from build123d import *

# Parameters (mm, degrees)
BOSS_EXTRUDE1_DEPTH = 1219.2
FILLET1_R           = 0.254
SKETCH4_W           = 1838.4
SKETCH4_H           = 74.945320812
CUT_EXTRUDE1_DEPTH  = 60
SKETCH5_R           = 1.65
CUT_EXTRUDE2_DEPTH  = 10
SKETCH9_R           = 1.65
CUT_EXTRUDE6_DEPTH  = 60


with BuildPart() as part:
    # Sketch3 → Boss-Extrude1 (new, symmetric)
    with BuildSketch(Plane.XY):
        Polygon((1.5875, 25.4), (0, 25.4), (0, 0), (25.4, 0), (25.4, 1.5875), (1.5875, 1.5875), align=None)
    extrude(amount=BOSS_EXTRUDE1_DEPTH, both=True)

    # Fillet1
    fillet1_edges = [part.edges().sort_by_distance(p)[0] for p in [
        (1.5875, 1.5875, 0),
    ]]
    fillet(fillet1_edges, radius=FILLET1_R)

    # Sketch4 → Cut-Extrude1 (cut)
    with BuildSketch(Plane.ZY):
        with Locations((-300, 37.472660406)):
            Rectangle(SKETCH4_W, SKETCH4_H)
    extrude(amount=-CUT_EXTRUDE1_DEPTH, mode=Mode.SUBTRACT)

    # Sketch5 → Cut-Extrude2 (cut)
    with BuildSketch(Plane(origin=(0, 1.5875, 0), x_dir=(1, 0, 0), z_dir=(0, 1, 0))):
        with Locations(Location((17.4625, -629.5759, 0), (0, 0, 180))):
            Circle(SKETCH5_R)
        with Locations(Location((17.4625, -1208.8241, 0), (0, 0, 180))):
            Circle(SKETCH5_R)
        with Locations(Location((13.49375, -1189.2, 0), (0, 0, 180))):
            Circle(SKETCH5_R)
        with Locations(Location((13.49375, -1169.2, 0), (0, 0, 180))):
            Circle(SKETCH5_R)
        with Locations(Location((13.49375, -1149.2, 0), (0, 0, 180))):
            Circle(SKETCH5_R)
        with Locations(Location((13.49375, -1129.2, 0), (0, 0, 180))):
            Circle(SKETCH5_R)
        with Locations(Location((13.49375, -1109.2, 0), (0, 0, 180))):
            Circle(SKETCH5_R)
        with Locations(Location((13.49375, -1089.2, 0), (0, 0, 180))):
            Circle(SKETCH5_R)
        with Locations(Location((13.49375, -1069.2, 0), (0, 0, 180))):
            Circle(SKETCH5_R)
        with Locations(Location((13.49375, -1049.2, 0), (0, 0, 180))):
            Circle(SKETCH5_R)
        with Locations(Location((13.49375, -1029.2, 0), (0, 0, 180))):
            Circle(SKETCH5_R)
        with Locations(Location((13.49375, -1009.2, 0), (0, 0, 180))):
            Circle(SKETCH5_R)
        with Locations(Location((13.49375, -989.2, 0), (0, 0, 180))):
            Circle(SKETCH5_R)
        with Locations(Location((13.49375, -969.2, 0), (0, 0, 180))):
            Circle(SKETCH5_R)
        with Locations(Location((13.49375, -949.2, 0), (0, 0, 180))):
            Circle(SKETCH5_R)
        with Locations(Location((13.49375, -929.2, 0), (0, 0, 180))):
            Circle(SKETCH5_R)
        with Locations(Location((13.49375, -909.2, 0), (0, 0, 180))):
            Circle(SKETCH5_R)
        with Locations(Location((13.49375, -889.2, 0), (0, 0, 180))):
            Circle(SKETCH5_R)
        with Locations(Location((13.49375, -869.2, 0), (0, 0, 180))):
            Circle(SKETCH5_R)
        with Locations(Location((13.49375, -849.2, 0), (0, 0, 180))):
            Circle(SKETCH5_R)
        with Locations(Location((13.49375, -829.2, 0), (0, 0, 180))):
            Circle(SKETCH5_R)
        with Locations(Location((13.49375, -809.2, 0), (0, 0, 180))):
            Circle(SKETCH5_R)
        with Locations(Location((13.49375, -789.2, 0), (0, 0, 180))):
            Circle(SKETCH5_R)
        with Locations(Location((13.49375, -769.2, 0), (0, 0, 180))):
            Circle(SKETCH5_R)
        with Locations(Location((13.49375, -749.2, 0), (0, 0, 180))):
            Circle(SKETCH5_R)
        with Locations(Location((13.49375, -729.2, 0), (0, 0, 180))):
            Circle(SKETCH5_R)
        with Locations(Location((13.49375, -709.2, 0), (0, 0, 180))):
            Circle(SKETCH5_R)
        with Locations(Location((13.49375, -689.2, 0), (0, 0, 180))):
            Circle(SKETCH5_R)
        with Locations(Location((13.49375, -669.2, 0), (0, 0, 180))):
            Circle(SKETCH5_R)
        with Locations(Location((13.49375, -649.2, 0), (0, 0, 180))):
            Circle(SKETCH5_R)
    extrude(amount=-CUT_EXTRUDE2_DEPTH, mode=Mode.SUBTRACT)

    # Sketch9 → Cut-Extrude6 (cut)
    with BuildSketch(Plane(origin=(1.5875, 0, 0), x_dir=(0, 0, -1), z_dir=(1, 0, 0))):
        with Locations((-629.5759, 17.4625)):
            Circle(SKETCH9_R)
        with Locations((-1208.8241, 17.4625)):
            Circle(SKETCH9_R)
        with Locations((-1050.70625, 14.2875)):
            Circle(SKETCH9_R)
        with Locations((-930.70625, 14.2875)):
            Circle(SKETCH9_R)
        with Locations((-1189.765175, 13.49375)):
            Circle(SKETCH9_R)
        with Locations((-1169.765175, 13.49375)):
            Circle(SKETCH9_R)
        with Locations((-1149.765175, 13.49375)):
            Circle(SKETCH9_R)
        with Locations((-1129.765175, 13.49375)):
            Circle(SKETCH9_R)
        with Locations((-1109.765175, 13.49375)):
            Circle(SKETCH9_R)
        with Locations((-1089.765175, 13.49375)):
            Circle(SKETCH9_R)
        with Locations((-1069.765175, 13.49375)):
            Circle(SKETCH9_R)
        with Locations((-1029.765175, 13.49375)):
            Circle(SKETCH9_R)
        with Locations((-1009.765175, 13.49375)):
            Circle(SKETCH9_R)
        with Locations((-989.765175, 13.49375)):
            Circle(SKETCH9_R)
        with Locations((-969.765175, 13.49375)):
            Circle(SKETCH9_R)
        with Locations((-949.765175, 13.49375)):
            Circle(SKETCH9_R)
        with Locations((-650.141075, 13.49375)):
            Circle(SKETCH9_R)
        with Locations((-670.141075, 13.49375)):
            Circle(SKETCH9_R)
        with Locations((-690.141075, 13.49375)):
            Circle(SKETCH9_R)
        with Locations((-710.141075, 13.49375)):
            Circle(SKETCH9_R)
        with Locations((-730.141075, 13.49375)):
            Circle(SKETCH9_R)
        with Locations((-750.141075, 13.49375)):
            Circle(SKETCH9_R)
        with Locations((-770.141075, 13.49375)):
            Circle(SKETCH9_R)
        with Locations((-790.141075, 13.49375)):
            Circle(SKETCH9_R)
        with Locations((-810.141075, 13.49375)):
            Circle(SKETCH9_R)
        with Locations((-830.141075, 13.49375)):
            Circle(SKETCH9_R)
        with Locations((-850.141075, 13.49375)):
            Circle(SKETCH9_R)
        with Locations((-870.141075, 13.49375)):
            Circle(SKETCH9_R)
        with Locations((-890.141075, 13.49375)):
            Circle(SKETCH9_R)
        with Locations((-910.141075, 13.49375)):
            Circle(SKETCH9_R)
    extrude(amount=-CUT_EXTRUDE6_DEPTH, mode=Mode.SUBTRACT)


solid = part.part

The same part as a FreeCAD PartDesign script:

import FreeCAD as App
import Part
import Sketcher
from FreeCAD import Vector
Q = App.Units.Quantity


def edges_at(feature, points):
    """Names of the edges that pass closest to the given points."""
    edges = feature.Shape.Edges
    near = lambda p: min(range(len(edges)), key=lambda i: edges[i].distToShape(Part.Vertex(*p))[0])
    return sorted({f"Edge{near(p) + 1}" for p in points})

doc = App.newDocument("Part")
params = doc.addObject("Spreadsheet::Sheet", "Params")
for row, (alias, value) in enumerate([
    ("sketch1_width", "1 in"),
    ("sketch1_width2", "0.0625 in"),
    ("pad1_length", "96 in"),
    ("fillet_radius", "0.01 in"),
    ("pocket1_length", "60 mm"),
    ("pocket2_length", "10 mm"),
    ("pocket3_length", "60 mm"),
], start=1):
    params.set(f"A{row}", alias)
    params.set(f"B{row}", "=" + value)
    params.setAlias(f"B{row}", alias)

body = doc.addObject("PartDesign::Body", "Body")

# Sketch on XY plane
sketch1 = doc.addObject("Sketcher::SketchObject", "Sketch")
body.addObject(sketch1)
sketch1.AttachmentSupport = (doc.XY_Plane, [""])
sketch1.MapMode = "FlatFace"
sketch1.addGeometry([
    Part.LineSegment(Vector(1.5875, 25.4, 0), Vector(0, 25.4, 0)),  # 0
    Part.LineSegment(Vector(0, 25.4, 0), Vector(0, 0, 0)),  # 1
    Part.LineSegment(Vector(0, 0, 0), Vector(25.4, 0, 0)),  # 2
    Part.LineSegment(Vector(25.4, 0, 0), Vector(25.4, 1.5875, 0)),  # 3
    Part.LineSegment(Vector(25.4, 1.5875, 0), Vector(1.5875, 1.5875, 0)),  # 4
    Part.LineSegment(Vector(1.5875, 1.5875, 0), Vector(1.5875, 25.4, 0)),  # 5
], False)
sketch1.addConstraint([
    Sketcher.Constraint("Coincident", 0, 2, 1, 1),
    Sketcher.Constraint("Coincident", 1, 2, 2, 1),
    Sketcher.Constraint("Coincident", 2, 2, 3, 1),
    Sketcher.Constraint("Coincident", 3, 2, 4, 1),
    Sketcher.Constraint("Coincident", 4, 2, 5, 1),
    Sketcher.Constraint("Coincident", 5, 2, 0, 1),
    Sketcher.Constraint("Horizontal", 0),
    Sketcher.Constraint("Vertical", 1),
    Sketcher.Constraint("Horizontal", 2),
    Sketcher.Constraint("Vertical", 3),
    Sketcher.Constraint("Horizontal", 4),
    Sketcher.Constraint("Vertical", 5),
    Sketcher.Constraint("Coincident", 1, 2, -1, 1),
    Sketcher.Constraint("Equal", 2, 1),
    Sketcher.Constraint("Equal", 0, 3),
    Sketcher.Constraint("DistanceX", 2, 1, 2, 2, Q("1 in")),
    Sketcher.Constraint("DistanceX", 0, 2, 0, 1, Q("0.0625 in")),
])
sketch1.setExpression("Constraints[15]", "Params.sketch1_width")
sketch1.setExpression("Constraints[16]", "Params.sketch1_width2")
pad1 = doc.addObject("PartDesign::Pad", "Pad")
body.addObject(pad1)
pad1.Profile = sketch1
pad1.setExpression("Length", "Params.pad1_length")
pad1.Midplane = True
doc.recompute()

fillet = doc.addObject("PartDesign::Fillet", "Fillet")
body.addObject(fillet)
fillet.Base = (pad1, edges_at(pad1, [(1.587, 1.587, 0)]))
fillet.setExpression("Radius", "Params.fillet_radius")

# Sketch on YZ plane
sketch2 = doc.addObject("Sketcher::SketchObject", "Sketch001")
body.addObject(sketch2)
sketch2.AttachmentSupport = (doc.YZ_Plane, [""])
sketch2.MapMode = "FlatFace"
sketch2.addGeometry([
    Part.LineSegment(Vector(74.945321, -1219.2, 0), Vector(0, -1219.2, 0)),
    Part.LineSegment(Vector(0, -1219.2, 0), Vector(0, 619.2, 0)),
    Part.LineSegment(Vector(0, 619.2, 0), Vector(74.945321, 619.2, 0)),
    Part.LineSegment(Vector(74.945321, 619.2, 0), Vector(74.945321, -1219.2, 0)),
], False)
sketch2.addConstraint([
    Sketcher.Constraint("Coincident", 0, 2, 1, 1),
    Sketcher.Constraint("Coincident", 1, 2, 2, 1),
    Sketcher.Constraint("Coincident", 2, 2, 3, 1),
    Sketcher.Constraint("Coincident", 3, 2, 0, 1),
    Sketcher.Constraint("Horizontal", 0),
    Sketcher.Constraint("Vertical", 1),
    Sketcher.Constraint("Horizontal", 2),
    Sketcher.Constraint("Vertical", 3),
    Sketcher.Constraint("PointOnObject", 0, 2, -2),
    Sketcher.Constraint("DistanceY", 0, 2, -1, 1, Q("48 in")),
    Sketcher.Constraint("DistanceY", 1, 1, 1, 2, 1838.4),
    Sketcher.Constraint("DistanceX", 0, 2, 0, 1, 74.945321),
])
pocket1 = doc.addObject("PartDesign::Pocket", "Pocket")
body.addObject(pocket1)
pocket1.Profile = sketch2
pocket1.setExpression("Length", "Params.pocket1_length")
pocket1.Reversed = True

# Sketch on XZ plane
sketch3 = doc.addObject("Sketcher::SketchObject", "Sketch002")
body.addObject(sketch3)
sketch3.AttachmentSupport = (doc.XZ_Plane, [""])
sketch3.MapMode = "FlatFace"
sketch3.AttachmentOffset = App.Placement(Vector(0, 0, -0.0625 * 25.4), App.Rotation())
sketch3.addGeometry([
    Part.Circle(Vector(17.4625, 629.5759, 0), Vector(0, 0, 1), 1.65),  # 0
    Part.Circle(Vector(17.4625, 1208.8241, 0), Vector(0, 0, 1), 1.65),  # 1
    Part.Circle(Vector(13.49375, 1189.2, 0), Vector(0, 0, 1), 1.65),  # 2
    Part.Circle(Vector(13.49375, 1169.2, 0), Vector(0, 0, 1), 1.65),  # 3
    Part.Circle(Vector(13.49375, 1149.2, 0), Vector(0, 0, 1), 1.65),  # 4
    Part.Circle(Vector(13.49375, 1129.2, 0), Vector(0, 0, 1), 1.65),  # 5
    Part.Circle(Vector(13.49375, 1109.2, 0), Vector(0, 0, 1), 1.65),  # 6
    Part.Circle(Vector(13.49375, 1089.2, 0), Vector(0, 0, 1), 1.65),  # 7
    Part.Circle(Vector(13.49375, 1069.2, 0), Vector(0, 0, 1), 1.65),  # 8
    Part.Circle(Vector(13.49375, 1049.2, 0), Vector(0, 0, 1), 1.65),  # 9
    Part.Circle(Vector(13.49375, 1029.2, 0), Vector(0, 0, 1), 1.65),  # 10
    Part.Circle(Vector(13.49375, 1009.2, 0), Vector(0, 0, 1), 1.65),  # 11
    Part.Circle(Vector(13.49375, 989.2, 0), Vector(0, 0, 1), 1.65),  # 12
    Part.Circle(Vector(13.49375, 969.2, 0), Vector(0, 0, 1), 1.65),  # 13
    Part.Circle(Vector(13.49375, 949.2, 0), Vector(0, 0, 1), 1.65),  # 14
    Part.Circle(Vector(13.49375, 929.2, 0), Vector(0, 0, 1), 1.65),  # 15
    Part.Circle(Vector(13.49375, 909.2, 0), Vector(0, 0, 1), 1.65),  # 16
    Part.Circle(Vector(13.49375, 889.2, 0), Vector(0, 0, 1), 1.65),  # 17
    Part.Circle(Vector(13.49375, 869.2, 0), Vector(0, 0, 1), 1.65),  # 18
    Part.Circle(Vector(13.49375, 849.2, 0), Vector(0, 0, 1), 1.65),  # 19
    Part.Circle(Vector(13.49375, 829.2, 0), Vector(0, 0, 1), 1.65),  # 20
    Part.Circle(Vector(13.49375, 809.2, 0), Vector(0, 0, 1), 1.65),  # 21
    Part.Circle(Vector(13.49375, 789.2, 0), Vector(0, 0, 1), 1.65),  # 22
    Part.Circle(Vector(13.49375, 769.2, 0), Vector(0, 0, 1), 1.65),  # 23
    Part.Circle(Vector(13.49375, 749.2, 0), Vector(0, 0, 1), 1.65),  # 24
    Part.Circle(Vector(13.49375, 729.2, 0), Vector(0, 0, 1), 1.65),  # 25
    Part.Circle(Vector(13.49375, 709.2, 0), Vector(0, 0, 1), 1.65),  # 26
    Part.Circle(Vector(13.49375, 689.2, 0), Vector(0, 0, 1), 1.65),  # 27
    Part.Circle(Vector(13.49375, 669.2, 0), Vector(0, 0, 1), 1.65),  # 28
    Part.Circle(Vector(13.49375, 649.2, 0), Vector(0, 0, 1), 1.65),  # 29
], False)
sketch3.addConstraint([
    Sketcher.Constraint("Equal", 0, 1),
    Sketcher.Constraint("Equal", 1, 2),
    Sketcher.Constraint("Equal", 2, 3),
    Sketcher.Constraint("Equal", 3, 4),
    Sketcher.Constraint("Equal", 4, 5),
    Sketcher.Constraint("Equal", 5, 6),
    Sketcher.Constraint("Equal", 6, 7),
    Sketcher.Constraint("Equal", 7, 8),
    Sketcher.Constraint("Equal", 8, 9),
    Sketcher.Constraint("Equal", 9, 10),
    Sketcher.Constraint("Equal", 10, 11),
    Sketcher.Constraint("Equal", 11, 12),
    Sketcher.Constraint("Equal", 12, 13),
    Sketcher.Constraint("Equal", 13, 14),
    Sketcher.Constraint("Equal", 14, 15),
    Sketcher.Constraint("Equal", 15, 16),
    Sketcher.Constraint("Equal", 16, 17),
    Sketcher.Constraint("Equal", 17, 18),
    Sketcher.Constraint("Equal", 18, 19),
    Sketcher.Constraint("Equal", 19, 20),
    Sketcher.Constraint("Equal", 20, 21),
    Sketcher.Constraint("Equal", 21, 22),
    Sketcher.Constraint("Equal", 22, 23),
    Sketcher.Constraint("Equal", 23, 24),
    Sketcher.Constraint("Equal", 24, 25),
    Sketcher.Constraint("Equal", 25, 26),
    Sketcher.Constraint("Equal", 26, 27),
    Sketcher.Constraint("Equal", 27, 28),
    Sketcher.Constraint("Equal", 28, 29),
    Sketcher.Constraint("Vertical", 0, 3, 1, 3),
    Sketcher.Constraint("Vertical", 2, 3, 3, 3),
    Sketcher.Constraint("Vertical", 3, 3, 4, 3),
    Sketcher.Constraint("Vertical", 4, 3, 5, 3),
    Sketcher.Constraint("Vertical", 5, 3, 6, 3),
    Sketcher.Constraint("Vertical", 6, 3, 7, 3),
    Sketcher.Constraint("Vertical", 7, 3, 8, 3),
    Sketcher.Constraint("Vertical", 8, 3, 9, 3),
    Sketcher.Constraint("Vertical", 9, 3, 10, 3),
    Sketcher.Constraint("Vertical", 10, 3, 11, 3),
    Sketcher.Constraint("Vertical", 11, 3, 12, 3),
    Sketcher.Constraint("Vertical", 12, 3, 13, 3),
    Sketcher.Constraint("Vertical", 13, 3, 14, 3),
    Sketcher.Constraint("Vertical", 14, 3, 15, 3),
    Sketcher.Constraint("Vertical", 15, 3, 16, 3),
    Sketcher.Constraint("Vertical", 16, 3, 17, 3),
    Sketcher.Constraint("Vertical", 17, 3, 18, 3),
    Sketcher.Constraint("Vertical", 18, 3, 19, 3),
    Sketcher.Constraint("Vertical", 19, 3, 20, 3),
    Sketcher.Constraint("Vertical", 20, 3, 21, 3),
    Sketcher.Constraint("Vertical", 21, 3, 22, 3),
    Sketcher.Constraint("Vertical", 22, 3, 23, 3),
    Sketcher.Constraint("Vertical", 23, 3, 24, 3),
    Sketcher.Constraint("Vertical", 24, 3, 25, 3),
    Sketcher.Constraint("Vertical", 25, 3, 26, 3),
    Sketcher.Constraint("Vertical", 26, 3, 27, 3),
    Sketcher.Constraint("Vertical", 27, 3, 28, 3),
    Sketcher.Constraint("Vertical", 28, 3, 29, 3),
    Sketcher.Constraint("Diameter", 0, 3.3),
    Sketcher.Constraint("DistanceX", -1, 1, 0, 3, Q("0.6875 in")),
    Sketcher.Constraint("DistanceX", -1, 1, 2, 3, Q("0.53125 in")),
    Sketcher.Constraint("DistanceY", -1, 1, 1, 3, Q("47.5915 in")),
    Sketcher.Constraint("DistanceY", -1, 1, 0, 3, 629.5759),
    Sketcher.Constraint("DistanceY", -1, 1, 2, 3, 1189.2),
    Sketcher.Constraint("DistanceY", -1, 1, 3, 3, 1169.2),
    Sketcher.Constraint("DistanceY", -1, 1, 4, 3, 1149.2),
    Sketcher.Constraint("DistanceY", -1, 1, 5, 3, 1129.2),
    Sketcher.Constraint("DistanceY", -1, 1, 6, 3, 1109.2),
    Sketcher.Constraint("DistanceY", -1, 1, 7, 3, 1089.2),
    Sketcher.Constraint("DistanceY", -1, 1, 8, 3, 1069.2),
    Sketcher.Constraint("DistanceY", -1, 1, 9, 3, 1049.2),
    Sketcher.Constraint("DistanceY", -1, 1, 10, 3, 1029.2),
    Sketcher.Constraint("DistanceY", -1, 1, 11, 3, 1009.2),
    Sketcher.Constraint("DistanceY", -1, 1, 12, 3, 989.2),
    Sketcher.Constraint("DistanceY", -1, 1, 13, 3, 969.2),
    Sketcher.Constraint("DistanceY", -1, 1, 14, 3, 949.2),
    Sketcher.Constraint("DistanceY", -1, 1, 15, 3, 929.2),
    Sketcher.Constraint("DistanceY", -1, 1, 16, 3, 909.2),
    Sketcher.Constraint("DistanceY", -1, 1, 17, 3, 889.2),
    Sketcher.Constraint("DistanceY", -1, 1, 18, 3, 869.2),
    Sketcher.Constraint("DistanceY", -1, 1, 19, 3, 849.2),
    Sketcher.Constraint("DistanceY", -1, 1, 20, 3, 829.2),
    Sketcher.Constraint("DistanceY", -1, 1, 21, 3, 809.2),
    Sketcher.Constraint("DistanceY", -1, 1, 22, 3, 789.2),
    Sketcher.Constraint("DistanceY", -1, 1, 23, 3, 769.2),
    Sketcher.Constraint("DistanceY", -1, 1, 24, 3, 749.2),
    Sketcher.Constraint("DistanceY", -1, 1, 25, 3, 729.2),
    Sketcher.Constraint("DistanceY", -1, 1, 26, 3, 709.2),
    Sketcher.Constraint("DistanceY", -1, 1, 27, 3, 689.2),
    Sketcher.Constraint("DistanceY", -1, 1, 28, 3, 669.2),
    Sketcher.Constraint("DistanceY", -1, 1, 29, 3, 649.2),
])
pocket2 = doc.addObject("PartDesign::Pocket", "Pocket001")
body.addObject(pocket2)
pocket2.Profile = sketch3
pocket2.setExpression("Length", "Params.pocket2_length")
pocket2.Reversed = True

# Sketch on YZ plane
sketch4 = doc.addObject("Sketcher::SketchObject", "Sketch003")
body.addObject(sketch4)
sketch4.AttachmentSupport = (doc.YZ_Plane, [""])
sketch4.MapMode = "FlatFace"
sketch4.AttachmentOffset = App.Placement(Vector(0, 0, 0.0625 * 25.4), App.Rotation())
sketch4.addGeometry([
    Part.Circle(Vector(17.4625, 629.5759, 0), Vector(0, 0, 1), 1.65),  # 0
    Part.Circle(Vector(17.4625, 1208.8241, 0), Vector(0, 0, 1), 1.65),  # 1
    Part.Circle(Vector(14.2875, 1050.70625, 0), Vector(0, 0, 1), 1.65),  # 2
    Part.Circle(Vector(14.2875, 930.70625, 0), Vector(0, 0, 1), 1.65),  # 3
    Part.Circle(Vector(13.49375, 1189.765175, 0), Vector(0, 0, 1), 1.65),  # 4
    Part.Circle(Vector(13.49375, 1169.765175, 0), Vector(0, 0, 1), 1.65),  # 5
    Part.Circle(Vector(13.49375, 1149.765175, 0), Vector(0, 0, 1), 1.65),  # 6
    Part.Circle(Vector(13.49375, 1129.765175, 0), Vector(0, 0, 1), 1.65),  # 7
    Part.Circle(Vector(13.49375, 1109.765175, 0), Vector(0, 0, 1), 1.65),  # 8
    Part.Circle(Vector(13.49375, 1089.765175, 0), Vector(0, 0, 1), 1.65),  # 9
    Part.Circle(Vector(13.49375, 1069.765175, 0), Vector(0, 0, 1), 1.65),  # 10
    Part.Circle(Vector(13.49375, 1029.765175, 0), Vector(0, 0, 1), 1.65),  # 11
    Part.Circle(Vector(13.49375, 1009.765175, 0), Vector(0, 0, 1), 1.65),  # 12
    Part.Circle(Vector(13.49375, 989.765175, 0), Vector(0, 0, 1), 1.65),  # 13
    Part.Circle(Vector(13.49375, 969.765175, 0), Vector(0, 0, 1), 1.65),  # 14
    Part.Circle(Vector(13.49375, 949.765175, 0), Vector(0, 0, 1), 1.65),  # 15
    Part.Circle(Vector(13.49375, 650.141075, 0), Vector(0, 0, 1), 1.65),  # 16
    Part.Circle(Vector(13.49375, 670.141075, 0), Vector(0, 0, 1), 1.65),  # 17
    Part.Circle(Vector(13.49375, 690.141075, 0), Vector(0, 0, 1), 1.65),  # 18
    Part.Circle(Vector(13.49375, 710.141075, 0), Vector(0, 0, 1), 1.65),  # 19
    Part.Circle(Vector(13.49375, 730.141075, 0), Vector(0, 0, 1), 1.65),  # 20
    Part.Circle(Vector(13.49375, 750.141075, 0), Vector(0, 0, 1), 1.65),  # 21
    Part.Circle(Vector(13.49375, 770.141075, 0), Vector(0, 0, 1), 1.65),  # 22
    Part.Circle(Vector(13.49375, 790.141075, 0), Vector(0, 0, 1), 1.65),  # 23
    Part.Circle(Vector(13.49375, 810.141075, 0), Vector(0, 0, 1), 1.65),  # 24
    Part.Circle(Vector(13.49375, 830.141075, 0), Vector(0, 0, 1), 1.65),  # 25
    Part.Circle(Vector(13.49375, 850.141075, 0), Vector(0, 0, 1), 1.65),  # 26
    Part.Circle(Vector(13.49375, 870.141075, 0), Vector(0, 0, 1), 1.65),  # 27
    Part.Circle(Vector(13.49375, 890.141075, 0), Vector(0, 0, 1), 1.65),  # 28
    Part.Circle(Vector(13.49375, 910.141075, 0), Vector(0, 0, 1), 1.65),  # 29
], False)
sketch4.addConstraint([
    Sketcher.Constraint("Equal", 0, 1),
    Sketcher.Constraint("Equal", 1, 2),
    Sketcher.Constraint("Equal", 2, 3),
    Sketcher.Constraint("Equal", 3, 4),
    Sketcher.Constraint("Equal", 4, 5),
    Sketcher.Constraint("Equal", 5, 6),
    Sketcher.Constraint("Equal", 6, 7),
    Sketcher.Constraint("Equal", 7, 8),
    Sketcher.Constraint("Equal", 8, 9),
    Sketcher.Constraint("Equal", 9, 10),
    Sketcher.Constraint("Equal", 10, 11),
    Sketcher.Constraint("Equal", 11, 12),
    Sketcher.Constraint("Equal", 12, 13),
    Sketcher.Constraint("Equal", 13, 14),
    Sketcher.Constraint("Equal", 14, 15),
    Sketcher.Constraint("Equal", 15, 16),
    Sketcher.Constraint("Equal", 16, 17),
    Sketcher.Constraint("Equal", 17, 18),
    Sketcher.Constraint("Equal", 18, 19),
    Sketcher.Constraint("Equal", 19, 20),
    Sketcher.Constraint("Equal", 20, 21),
    Sketcher.Constraint("Equal", 21, 22),
    Sketcher.Constraint("Equal", 22, 23),
    Sketcher.Constraint("Equal", 23, 24),
    Sketcher.Constraint("Equal", 24, 25),
    Sketcher.Constraint("Equal", 25, 26),
    Sketcher.Constraint("Equal", 26, 27),
    Sketcher.Constraint("Equal", 27, 28),
    Sketcher.Constraint("Equal", 28, 29),
    Sketcher.Constraint("Vertical", 0, 3, 1, 3),
    Sketcher.Constraint("Vertical", 2, 3, 3, 3),
    Sketcher.Constraint("Vertical", 4, 3, 5, 3),
    Sketcher.Constraint("Vertical", 5, 3, 6, 3),
    Sketcher.Constraint("Vertical", 6, 3, 7, 3),
    Sketcher.Constraint("Vertical", 7, 3, 8, 3),
    Sketcher.Constraint("Vertical", 8, 3, 9, 3),
    Sketcher.Constraint("Vertical", 9, 3, 10, 3),
    Sketcher.Constraint("Vertical", 10, 3, 11, 3),
    Sketcher.Constraint("Vertical", 11, 3, 12, 3),
    Sketcher.Constraint("Vertical", 12, 3, 13, 3),
    Sketcher.Constraint("Vertical", 13, 3, 14, 3),
    Sketcher.Constraint("Vertical", 14, 3, 15, 3),
    Sketcher.Constraint("Vertical", 15, 3, 16, 3),
    Sketcher.Constraint("Vertical", 16, 3, 17, 3),
    Sketcher.Constraint("Vertical", 17, 3, 18, 3),
    Sketcher.Constraint("Vertical", 18, 3, 19, 3),
    Sketcher.Constraint("Vertical", 19, 3, 20, 3),
    Sketcher.Constraint("Vertical", 20, 3, 21, 3),
    Sketcher.Constraint("Vertical", 21, 3, 22, 3),
    Sketcher.Constraint("Vertical", 22, 3, 23, 3),
    Sketcher.Constraint("Vertical", 23, 3, 24, 3),
    Sketcher.Constraint("Vertical", 24, 3, 25, 3),
    Sketcher.Constraint("Vertical", 25, 3, 26, 3),
    Sketcher.Constraint("Vertical", 26, 3, 27, 3),
    Sketcher.Constraint("Vertical", 27, 3, 28, 3),
    Sketcher.Constraint("Vertical", 28, 3, 29, 3),
    Sketcher.Constraint("Diameter", 0, 3.3),
    Sketcher.Constraint("DistanceX", -1, 1, 0, 3, Q("0.6875 in")),
    Sketcher.Constraint("DistanceX", -1, 1, 2, 3, Q("0.5625 in")),
    Sketcher.Constraint("DistanceX", -1, 1, 4, 3, Q("0.53125 in")),
    Sketcher.Constraint("DistanceY", -1, 1, 1, 3, Q("47.5915 in")),
    Sketcher.Constraint("DistanceY", -1, 1, 0, 3, 629.5759),
    Sketcher.Constraint("DistanceY", 3, 3, 2, 3, 120.0),
    Sketcher.Constraint("DistanceY", 5, 3, 4, 3, 20.0),
    Sketcher.Constraint("DistanceY", 6, 3, 5, 3, 20.0),
    Sketcher.Constraint("DistanceY", 7, 3, 6, 3, 20.0),
    Sketcher.Constraint("DistanceY", 8, 3, 7, 3, 20.0),
    Sketcher.Constraint("DistanceY", 9, 3, 8, 3, 20.0),
    Sketcher.Constraint("DistanceY", 10, 3, 9, 3, 20.0),
    Sketcher.Constraint("DistanceY", 11, 3, 10, 3, 40.0),
    Sketcher.Constraint("DistanceY", 12, 3, 11, 3, 20.0),
    Sketcher.Constraint("DistanceY", 13, 3, 12, 3, 20.0),
    Sketcher.Constraint("DistanceY", 14, 3, 13, 3, 20.0),
    Sketcher.Constraint("DistanceY", 15, 3, 14, 3, 20.0),
    Sketcher.Constraint("DistanceY", 16, 3, 15, 3, 299.6241),
    Sketcher.Constraint("DistanceY", 16, 3, 17, 3, 20.0),
    Sketcher.Constraint("DistanceY", 17, 3, 18, 3, 20.0),
    Sketcher.Constraint("DistanceY", 18, 3, 19, 3, 20.0),
    Sketcher.Constraint("DistanceY", 19, 3, 20, 3, 20.0),
    Sketcher.Constraint("DistanceY", 20, 3, 21, 3, 20.0),
    Sketcher.Constraint("DistanceY", 21, 3, 22, 3, 20.0),
    Sketcher.Constraint("DistanceY", 22, 3, 23, 3, 20.0),
    Sketcher.Constraint("DistanceY", 23, 3, 24, 3, 20.0),
    Sketcher.Constraint("DistanceY", 24, 3, 25, 3, 20.0),
    Sketcher.Constraint("DistanceY", 25, 3, 26, 3, 20.0),
    Sketcher.Constraint("DistanceY", 26, 3, 27, 3, 20.0),
    Sketcher.Constraint("DistanceY", 27, 3, 28, 3, 20.0),
    Sketcher.Constraint("DistanceY", 28, 3, 29, 3, 20.0),
    Sketcher.Constraint("DistanceY", -1, 1, 2, 3, 1050.70625),
    Sketcher.Constraint("DistanceY", -1, 1, 4, 3, 1189.765175),
])
pocket3 = doc.addObject("PartDesign::Pocket", "Pocket002")
body.addObject(pocket3)
pocket3.Profile = sketch4
pocket3.setExpression("Length", "Params.pocket3_length")

doc.recompute()
